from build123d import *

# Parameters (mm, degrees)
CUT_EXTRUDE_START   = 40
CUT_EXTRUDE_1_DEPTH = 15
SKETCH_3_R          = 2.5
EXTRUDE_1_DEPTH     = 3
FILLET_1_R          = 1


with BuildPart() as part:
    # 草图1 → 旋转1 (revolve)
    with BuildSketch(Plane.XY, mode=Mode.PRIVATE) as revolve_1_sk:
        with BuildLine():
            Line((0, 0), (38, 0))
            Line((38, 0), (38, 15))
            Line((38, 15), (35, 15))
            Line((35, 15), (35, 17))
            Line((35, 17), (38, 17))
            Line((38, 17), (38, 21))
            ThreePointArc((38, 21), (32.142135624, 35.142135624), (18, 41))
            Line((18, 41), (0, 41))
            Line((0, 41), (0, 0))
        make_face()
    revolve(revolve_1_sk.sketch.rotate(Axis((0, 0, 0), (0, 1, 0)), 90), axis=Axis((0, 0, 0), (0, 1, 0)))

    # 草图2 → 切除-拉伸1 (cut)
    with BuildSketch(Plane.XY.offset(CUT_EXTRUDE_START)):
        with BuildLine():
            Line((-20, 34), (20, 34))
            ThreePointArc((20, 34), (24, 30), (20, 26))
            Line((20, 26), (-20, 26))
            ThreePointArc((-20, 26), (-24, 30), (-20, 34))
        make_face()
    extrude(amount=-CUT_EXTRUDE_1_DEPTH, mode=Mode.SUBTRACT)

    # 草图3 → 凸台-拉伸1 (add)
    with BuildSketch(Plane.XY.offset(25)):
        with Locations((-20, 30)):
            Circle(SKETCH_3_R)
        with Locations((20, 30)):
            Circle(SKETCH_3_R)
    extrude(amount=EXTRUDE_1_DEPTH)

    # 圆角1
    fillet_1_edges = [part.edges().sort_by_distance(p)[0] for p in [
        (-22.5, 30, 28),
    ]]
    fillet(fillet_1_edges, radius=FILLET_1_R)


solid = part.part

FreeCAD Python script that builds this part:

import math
import FreeCAD as App
import Part
import Sketcher
Q = App.Units.Quantity


def edges_at(feature, points):
    """Names of the edges that pass closest to the given points."""
    edges = feature.Shape.Edges
    near = lambda p: min(range(len(edges)), key=lambda i: edges[i].distToShape(Part.Vertex(*p))[0])
    return sorted({f"Edge{near(p) + 1}" for p in points})

doc = App.newDocument("Part")
body = doc.addObject("PartDesign::Body", "Body")

# Sketch on XY plane
sketch1 = body.newObject("Sketcher::SketchObject", "Sketch")
sketch1.AttachmentSupport = (doc.getObject("XY_Plane"), [""])
sketch1.MapMode = "FlatFace"
sketch1.addGeometry([
    Part.LineSegment(App.Vector(0, 0, 0), App.Vector(38, 0, 0)),  # 0
    Part.LineSegment(App.Vector(38, 0, 0), App.Vector(38, 15, 0)),  # 1
    Part.LineSegment(App.Vector(38, 15, 0), App.Vector(35, 15, 0)),  # 2
    Part.LineSegment(App.Vector(35, 15, 0), App.Vector(35, 17, 0)),  # 3
    Part.LineSegment(App.Vector(35, 17, 0), App.Vector(38, 17, 0)),  # 4
    Part.LineSegment(App.Vector(38, 17, 0), App.Vector(38, 21, 0)),  # 5
    Part.ArcOfCircle(Part.Circle(App.Vector(18, 21, 0), App.Vector(0, 0, 1), 20), math.radians(0), math.radians(90)),  # 6
    Part.LineSegment(App.Vector(18, 41, 0), App.Vector(0, 41, 0)),  # 7
    Part.LineSegment(App.Vector(0, 41, 0), App.Vector(0, 0, 0)),  # 8
], False)
sketch1.addConstraint([
    Sketcher.Constraint("Coincident", 0, 2, 1, 1),
    Sketcher.Constraint("Coincident", 1, 2, 2, 1),
    Sketcher.Constraint("Coincident", 2, 2, 3, 1),
    Sketcher.Constraint("Coincident", 3, 2, 4, 1),
    Sketcher.Constraint("Coincident", 4, 2, 5, 1),
    Sketcher.Constraint("Tangent", 5, 2, 6, 1),
    Sketcher.Constraint("Tangent", 6, 2, 7, 1),
    Sketcher.Constraint("Coincident", 7, 2, 8, 1),
    Sketcher.Constraint("Coincident", 8, 2, 0, 1),
    Sketcher.Constraint("Horizontal", 0),
    Sketcher.Constraint("Vertical", 1),
    Sketcher.Constraint("Horizontal", 2),
    Sketcher.Constraint("Vertical", 3),
    Sketcher.Constraint("Horizontal", 4),
    Sketcher.Constraint("Vertical", 5),
    Sketcher.Constraint("Horizontal", 7),
    Sketcher.Constraint("Vertical", 8),
    Sketcher.Constraint("Coincident", 8, 2, -1, 1),
    Sketcher.Constraint("Vertical", 1, 2, 4, 2),
    Sketcher.Constraint("Radius", 6, Q("20 mm")),
    Sketcher.Constraint("DistanceX", 0, 1, 0, 2, Q("38 mm")),
    Sketcher.Constraint("DistanceX", 2, 2, 2, 1, Q("3 mm")),
    Sketcher.Constraint("DistanceY", 1, 1, 1, 2, Q("15 mm")),
    Sketcher.Constraint("DistanceY", 3, 1, 3, 2, Q("2 mm")),
    Sketcher.Constraint("DistanceY", 5, 1, 5, 2, Q("4 mm")),
])
revolution = body.newObject("PartDesign::Revolution", "Revolution")
revolution.Profile = sketch1
revolution.ReferenceAxis = (sketch1, ["V_Axis"])
revolution.Angle = 360

# Sketch on XY plane
sketch2 = body.newObject("Sketcher::SketchObject", "Sketch001")
sketch2.AttachmentSupport = (doc.getObject("XY_Plane"), [""])
sketch2.MapMode = "FlatFace"
sketch2.AttachmentOffset = App.Placement(App.Vector(0, 0, 40), App.Rotation())
sketch2.addGeometry([
    Part.LineSegment(App.Vector(20, 34, 0), App.Vector(-20, 34, 0)),
    Part.ArcOfCircle(Part.Circle(App.Vector(-20, 30, 0), App.Vector(0, 0, 1), 4), math.radians(90), math.radians(270)),
    Part.LineSegment(App.Vector(-20, 26, 0), App.Vector(20, 26, 0)),
    Part.ArcOfCircle(Part.Circle(App.Vector(20, 30, 0), App.Vector(0, 0, 1), 4), math.radians(-90), math.radians(90)),
], False)
sketch2.addConstraint([
    Sketcher.Constraint("Tangent", 0, 2, 1, 1),
    Sketcher.Constraint("Tangent", 1, 2, 2, 1),
    Sketcher.Constraint("Tangent", 2, 2, 3, 1),
    Sketcher.Constraint("Tangent", 3, 2, 0, 1),
    Sketcher.Constraint("Horizontal", 0),
    Sketcher.Constraint("Horizontal", 2),
    Sketcher.Constraint("Radius", 1, Q("4 mm")),
    Sketcher.Constraint("DistanceX", 0, 2, 0, 1, Q("40 mm")),
    Sketcher.Constraint("DistanceX", 1, 3, -1, 1, Q("20 mm")),
    Sketcher.Constraint("DistanceY", -1, 1, 1, 3, Q("30 mm")),
])
pocket1 = body.newObject("PartDesign::Pocket", "Pocket")
pocket1.Profile = sketch2
pocket1.Length = 15

# Sketch on XY plane
sketch3 = body.newObject("Sketcher::SketchObject", "Sketch002")
sketch3.AttachmentSupport = (doc.getObject("XY_Plane"), [""])
sketch3.MapMode = "FlatFace"
sketch3.AttachmentOffset = App.Placement(App.Vector(0, 0, 25), App.Rotation())
sketch3.addGeometry([
    Part.Circle(App.Vector(-20, 30, 0), App.Vector(0, 0, 1), 2.5),
    Part.Circle(App.Vector(20, 30, 0), App.Vector(0, 0, 1), 2.5),
], False)
sketch3.addConstraint([
    Sketcher.Constraint("Equal", 0, 1),
    Sketcher.Constraint("Symmetric", 0, 3, 1, 3, -2),
    Sketcher.Constraint("Diameter", 0, Q("5 mm")),
    Sketcher.Constraint("DistanceX", 0, 3, -1, 1, Q("20 mm")),
    Sketcher.Constraint("DistanceY", -1, 1, 0, 3, Q("30 mm")),
])
pad1 = body.newObject("PartDesign::Pad", "Pad")
pad1.Profile = sketch3
pad1.Length = 3
doc.recompute()

fillet = body.newObject("PartDesign::Fillet", "Fillet")
fillet.Base = (pad1, edges_at(pad1, [(-22.5, 30, 28)]))
fillet.Radius = 1

doc.recompute()
